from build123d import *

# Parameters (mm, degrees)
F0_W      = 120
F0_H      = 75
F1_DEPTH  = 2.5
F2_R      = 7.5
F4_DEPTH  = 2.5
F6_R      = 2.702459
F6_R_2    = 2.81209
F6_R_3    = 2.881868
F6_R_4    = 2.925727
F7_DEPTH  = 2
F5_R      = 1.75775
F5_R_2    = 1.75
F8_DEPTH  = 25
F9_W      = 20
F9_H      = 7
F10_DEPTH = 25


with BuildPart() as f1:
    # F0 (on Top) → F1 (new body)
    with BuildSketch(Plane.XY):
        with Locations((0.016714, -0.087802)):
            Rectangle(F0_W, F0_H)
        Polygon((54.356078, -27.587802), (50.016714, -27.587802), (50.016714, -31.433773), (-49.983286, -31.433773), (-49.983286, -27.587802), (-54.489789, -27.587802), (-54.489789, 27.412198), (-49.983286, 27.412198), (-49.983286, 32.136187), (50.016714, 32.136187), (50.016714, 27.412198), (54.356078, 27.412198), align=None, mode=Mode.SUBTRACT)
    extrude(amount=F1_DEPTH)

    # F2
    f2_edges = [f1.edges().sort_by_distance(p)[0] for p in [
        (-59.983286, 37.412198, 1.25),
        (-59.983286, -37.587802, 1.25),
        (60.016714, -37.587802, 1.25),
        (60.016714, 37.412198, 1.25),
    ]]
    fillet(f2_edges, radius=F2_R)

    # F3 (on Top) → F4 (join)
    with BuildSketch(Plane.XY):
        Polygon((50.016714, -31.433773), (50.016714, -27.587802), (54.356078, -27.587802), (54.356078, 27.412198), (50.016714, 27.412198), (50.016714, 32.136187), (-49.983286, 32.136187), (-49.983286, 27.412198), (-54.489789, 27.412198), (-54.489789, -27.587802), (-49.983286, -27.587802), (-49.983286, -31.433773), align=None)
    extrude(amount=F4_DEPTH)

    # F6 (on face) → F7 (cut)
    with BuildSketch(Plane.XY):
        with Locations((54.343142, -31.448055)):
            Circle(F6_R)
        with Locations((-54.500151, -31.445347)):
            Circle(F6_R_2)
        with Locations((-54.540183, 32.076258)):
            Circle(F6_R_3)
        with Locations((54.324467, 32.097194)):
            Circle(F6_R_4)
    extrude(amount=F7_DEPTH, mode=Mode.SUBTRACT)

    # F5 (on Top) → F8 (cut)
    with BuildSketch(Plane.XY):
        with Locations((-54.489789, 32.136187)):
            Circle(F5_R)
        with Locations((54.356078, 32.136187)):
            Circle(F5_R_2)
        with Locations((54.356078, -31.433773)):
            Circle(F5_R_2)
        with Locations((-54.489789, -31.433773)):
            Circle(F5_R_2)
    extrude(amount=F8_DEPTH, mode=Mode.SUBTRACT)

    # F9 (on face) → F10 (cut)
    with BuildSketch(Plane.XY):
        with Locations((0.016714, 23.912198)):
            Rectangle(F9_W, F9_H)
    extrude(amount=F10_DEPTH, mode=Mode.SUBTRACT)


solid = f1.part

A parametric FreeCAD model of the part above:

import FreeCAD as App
import Part
import Sketcher
from FreeCAD import Vector
Q = App.Units.Quantity


def edges_at(feature, points):
    """Names of the edges that pass closest to the given points."""
    edges = feature.Shape.Edges
    near = lambda p: min(range(len(edges)), key=lambda i: edges[i].distToShape(Part.Vertex(*p))[0])
    return sorted({f"Edge{near(p) + 1}" for p in points})


def add_polygon(sketch, points):
    """Adds a closed chain of lines whose ends are joined by coincident constraints."""
    first, n = sketch.GeometryCount, len(points)
    for a, b in zip(points, points[1:] + points[:1]):
        sketch.addGeometry(Part.LineSegment(App.Vector(*a, 0), App.Vector(*b, 0)), False)
    for i in range(n):
        sketch.addConstraint(Sketcher.Constraint("Coincident", first + i, 2, first + (i + 1) % n, 1))

doc = App.newDocument("Part")
body = doc.addObject("PartDesign::Body", "Body")

# Sketch on XY plane
sketch1 = doc.addObject("Sketcher::SketchObject", "Sketch")
body.addObject(sketch1)
sketch1.AttachmentSupport = (doc.XY_Plane, [""])
sketch1.MapMode = "FlatFace"
add_polygon(sketch1, [(-60, 37.4), (-60, -37.6), (60, -37.6), (60, 37.4)])  # lines 0-3
add_polygon(sketch1, [(54.4, 27.4), (54.4, -27.6), (50, -27.6), (50, -31.4), (-50, -31.4), (-50, -27.6), (-54.5, -27.6), (-54.5, 27.4), (-50, 27.4), (-50, 32.1), (50, 32.1), (50, 27.4)])  # lines 4-15
sketch1.addConstraint(Sketcher.Constraint("Vertical", 0))
sketch1.addConstraint(Sketcher.Constraint("Horizontal", 1))
sketch1.addConstraint(Sketcher.Constraint("Vertical", 2))
sketch1.addConstraint(Sketcher.Constraint("Horizontal", 3))
sketch1.addConstraint(Sketcher.Constraint("Vertical", 4))
sketch1.addConstraint(Sketcher.Constraint("Horizontal", 5))
sketch1.addConstraint(Sketcher.Constraint("Vertical", 6))
sketch1.addConstraint(Sketcher.Constraint("Horizontal", 7))
sketch1.addConstraint(Sketcher.Constraint("Vertical", 8))
sketch1.addConstraint(Sketcher.Constraint("Horizontal", 9))
sketch1.addConstraint(Sketcher.Constraint("Vertical", 10))
sketch1.addConstraint(Sketcher.Constraint("Horizontal", 11))
sketch1.addConstraint(Sketcher.Constraint("Vertical", 12))
sketch1.addConstraint(Sketcher.Constraint("Horizontal", 13))
sketch1.addConstraint(Sketcher.Constraint("Vertical", 14))
sketch1.addConstraint(Sketcher.Constraint("Horizontal", 15))
sketch1.addConstraint(Sketcher.Constraint("Horizontal", 5, 2, 8, 2))
sketch1.addConstraint(Sketcher.Constraint("Horizontal", 11, 2, 14, 2))
sketch1.addConstraint(Sketcher.Constraint("Vertical", 8, 2, 11, 2))
sketch1.addConstraint(Sketcher.Constraint("Vertical", 6, 2, 13, 2))
sketch1.addConstraint(Sketcher.Constraint("DistanceX", 1, 1, 1, 2, Q("120 mm")))
sketch1.addConstraint(Sketcher.Constraint("DistanceX", 7, 2, 7, 1, Q("100 mm")))
sketch1.addConstraint(Sketcher.Constraint("DistanceY", 0, 2, 0, 1, Q("75 mm")))
sketch1.addConstraint(Sketcher.Constraint("DistanceY", 4, 2, 4, 1, Q("55 mm")))
sketch1.addConstraint(Sketcher.Constraint("DistanceY", 1, 2, 4, 2, Q("10 mm")))
sketch1.addConstraint(Sketcher.Constraint("DistanceX", 5, 2, 1, 2, Q("10 mm")))
sketch1.addConstraint(Sketcher.Constraint("DistanceY", 6, 2, 6, 1, Q("3.845971 mm")))
sketch1.addConstraint(Sketcher.Constraint("DistanceY", 12, 1, 12, 2, Q("4.723989 mm")))
sketch1.addConstraint(Sketcher.Constraint("DistanceY", 4, 2, -1, 1, Q("27.587802 mm")))
sketch1.addConstraint(Sketcher.Constraint("DistanceX", 5, 2, 5, 1, Q("4.339364 mm")))
sketch1.addConstraint(Sketcher.Constraint("DistanceX", 9, 2, 9, 1, Q("4.506503 mm")))
sketch1.addConstraint(Sketcher.Constraint("DistanceX", 9, 2, -1, 1, Q("54.489789 mm")))
pad1 = doc.addObject("PartDesign::Pad", "Pad")
body.addObject(pad1)
pad1.Profile = sketch1
pad1.Length = 2.5
doc.recompute()

fillet = doc.addObject("PartDesign::Fillet", "Fillet")
body.addObject(fillet)
fillet.Base = (pad1, edges_at(pad1, [
    (-59.983, 37.412, 1.25),
    (-59.983, -37.588, 1.25),
    (60.017, -37.588, 1.25),
    (60.017, 37.412, 1.25),
]))
fillet.Radius = 7.5

# Sketch on XY plane
sketch2 = doc.addObject("Sketcher::SketchObject", "Sketch001")
body.addObject(sketch2)
sketch2.AttachmentSupport = (doc.XY_Plane, [""])
sketch2.MapMode = "FlatFace"
add_polygon(sketch2, [(50, -31.4), (50, -27.6), (54.4, -27.6), (54.4, 27.4), (50, 27.4), (50, 32.1), (-50, 32.1), (-50, 27.4), (-54.5, 27.4), (-54.5, -27.6), (-50, -27.6), (-50, -31.4)])  # lines 0-11
sketch2.addConstraint(Sketcher.Constraint("Vertical", 0))
sketch2.addConstraint(Sketcher.Constraint("Horizontal", 1))
sketch2.addConstraint(Sketcher.Constraint("Vertical", 2))
sketch2.addConstraint(Sketcher.Constraint("Horizontal", 3))
sketch2.addConstraint(Sketcher.Constraint("Vertical", 4))
sketch2.addConstraint(Sketcher.Constraint("Horizontal", 5))
sketch2.addConstraint(Sketcher.Constraint("Vertical", 6))
sketch2.addConstraint(Sketcher.Constraint("Horizontal", 7))
sketch2.addConstraint(Sketcher.Constraint("Vertical", 8))
sketch2.addConstraint(Sketcher.Constraint("Horizontal", 9))
sketch2.addConstraint(Sketcher.Constraint("Vertical", 10))
sketch2.addConstraint(Sketcher.Constraint("Horizontal", 11))
sketch2.addConstraint(Sketcher.Constraint("Horizontal", 3, 2, 6, 2))
sketch2.addConstraint(Sketcher.Constraint("Horizontal", 1, 2, 8, 2))
sketch2.addConstraint(Sketcher.Constraint("Vertical", 0, 2, 3, 2))
sketch2.addConstraint(Sketcher.Constraint("Vertical", 6, 2, 9, 2))
sketch2.addConstraint(Sketcher.Constraint("DistanceX", 5, 2, 5, 1, Q("100 mm")))
sketch2.addConstraint(Sketcher.Constraint("DistanceY", 2, 1, 2, 2, Q("55 mm")))
sketch2.addConstraint(Sketcher.Constraint("DistanceY", 0, 1, 0, 2, Q("3.845971 mm")))
sketch2.addConstraint(Sketcher.Constraint("DistanceY", 4, 1, 4, 2, Q("4.723989 mm")))
sketch2.addConstraint(Sketcher.Constraint("DistanceY", 0, 2, -1, 1, Q("27.587802 mm")))
sketch2.addConstraint(Sketcher.Constraint("DistanceX", 1, 1, 1, 2, Q("4.339364 mm")))
sketch2.addConstraint(Sketcher.Constraint("DistanceX", 7, 2, 7, 1, Q("4.506503 mm")))
sketch2.addConstraint(Sketcher.Constraint("DistanceX", 7, 2, -1, 1, Q("54.489789 mm")))
pad2 = doc.addObject("PartDesign::Pad", "Pad001")
body.addObject(pad2)
pad2.Profile = sketch2
pad2.Length = 2.5

# Sketch on XY plane
sketch3 = doc.addObject("Sketcher::SketchObject", "Sketch002")
body.addObject(sketch3)
sketch3.AttachmentSupport = (doc.XY_Plane, [""])
sketch3.MapMode = "FlatFace"
sketch3.addGeometry(Part.Circle(Vector(54.3, -31.4, 0), Vector(0, 0, 1), 2.7), False)
sketch3.addGeometry(Part.Circle(Vector(-54.5, -31.4, 0), Vector(0, 0, 1), 2.8), False)
sketch3.addGeometry(Part.Circle(Vector(-54.5, 32.1, 0), Vector(0, 0, 1), 2.9), False)
sketch3.addGeometry(Part.Circle(Vector(54.3, 32.1, 0), Vector(0, 0, 1), 2.9), False)
sketch3.addConstraint(Sketcher.Constraint("Diameter", 0, Q("5.404918 mm")))
sketch3.addConstraint(Sketcher.Constraint("Diameter", 1, Q("5.62418 mm")))
sketch3.addConstraint(Sketcher.Constraint("Diameter", 2, Q("5.763736 mm")))
sketch3.addConstraint(Sketcher.Constraint("Diameter", 3, Q("5.851454 mm")))
sketch3.addConstraint(Sketcher.Constraint("DistanceX", 1, 3, -1, 1, Q("54.500151 mm")))
sketch3.addConstraint(Sketcher.Constraint("DistanceY", -1, 1, 2, 3, Q("32.076258 mm")))
sketch3.addConstraint(Sketcher.Constraint("DistanceX", 2, 3, 1, 3, Q("0.040032 mm")))
sketch3.addConstraint(Sketcher.Constraint("DistanceY", 0, 3, 3, 3, Q("63.545249 mm")))
sketch3.addConstraint(Sketcher.Constraint("DistanceX", 2, 3, 3, 3, Q("108.86465 mm")))
sketch3.addConstraint(Sketcher.Constraint("DistanceY", 1, 3, 3, 3, Q("63.542541 mm")))
sketch3.addConstraint(Sketcher.Constraint("DistanceX", -1, 1, 0, 3, Q("54.343142 mm")))
sketch3.addConstraint(Sketcher.Constraint("DistanceY", 0, 3, -1, 1, Q("31.448055 mm")))
pocket1 = doc.addObject("PartDesign::Pocket", "Pocket")
body.addObject(pocket1)
pocket1.Profile = sketch3
pocket1.Length = 2
pocket1.Reversed = True

# Sketch on XY plane
sketch4 = doc.addObject("Sketcher::SketchObject", "Sketch003")
body.addObject(sketch4)
sketch4.AttachmentSupport = (doc.XY_Plane, [""])
sketch4.MapMode = "FlatFace"
sketch4.addGeometry(Part.Circle(Vector(-54.5, 32.1, 0), Vector(0, 0, 1), 1.8), False)
sketch4.addGeometry(Part.Circle(Vector(54.4, 32.1, 0), Vector(0, 0, 1), 1.8), False)
sketch4.addGeometry(Part.Circle(Vector(54.4, -31.4, 0), Vector(0, 0, 1), 1.8), False)
sketch4.addGeometry(Part.Circle(Vector(-54.5, -31.4, 0), Vector(0, 0, 1), 1.8), False)
sketch4.addConstraint(Sketcher.Constraint("Equal", 1, 2))
sketch4.addConstraint(Sketcher.Constraint("Equal", 2, 3))
sketch4.addConstraint(Sketcher.Constraint("Horizontal", 0, 3, 1, 3))
sketch4.addConstraint(Sketcher.Constraint("Horizontal", 2, 3, 3, 3))
sketch4.addConstraint(Sketcher.Constraint("Vertical", 1, 3, 2, 3))
sketch4.addConstraint(Sketcher.Constraint("Vertical", 0, 3, 3, 3))
sketch4.addConstraint(Sketcher.Constraint("Diameter", 1, Q("3.5 mm")))
sketch4.addConstraint(Sketcher.Constraint("Diameter", 0, Q("3.5155 mm")))
sketch4.addConstraint(Sketcher.Constraint("DistanceX", 0, 3, -1, 1, Q("54.489789 mm")))
sketch4.addConstraint(Sketcher.Constraint("DistanceY", 2, 3, 1, 3, Q("63.56996 mm")))
sketch4.addConstraint(Sketcher.Constraint("DistanceY", -1, 1, 0, 3, Q("32.136187 mm")))
sketch4.addConstraint(Sketcher.Constraint("DistanceX", -1, 1, 1, 3, Q("54.356078 mm")))
pocket2 = doc.addObject("PartDesign::Pocket", "Pocket001")
body.addObject(pocket2)
pocket2.Profile = sketch4
pocket2.Length = 25
pocket2.Reversed = True

# Sketch on XY plane
sketch5 = doc.addObject("Sketcher::SketchObject", "Sketch004")
body.addObject(sketch5)
sketch5.AttachmentSupport = (doc.XY_Plane, [""])
sketch5.MapMode = "FlatFace"
add_polygon(sketch5, [(-10, 27), (-10, 20), (10, 20), (10, 27)])  # lines 0-3
sketch5.addConstraint(Sketcher.Constraint("Vertical", 0))
sketch5.addConstraint(Sketcher.Constraint("Horizontal", 1))
sketch5.addConstraint(Sketcher.Constraint("Vertical", 2))
sketch5.addConstraint(Sketcher.Constraint("Horizontal", 3))
sketch5.addConstraint(Sketcher.Constraint("DistanceX", 1, 1, 1, 2, Q("20 mm")))
sketch5.addConstraint(Sketcher.Constraint("DistanceY", 0, 2, 0, 1, Q("7 mm")))
sketch5.addConstraint(Sketcher.Constraint("DistanceY", -1, 1, 0, 2, Q("20.412198 mm")))
sketch5.addConstraint(Sketcher.Constraint("DistanceX", 0, 2, -1, 1, Q("9.983286 mm")))
pocket3 = doc.addObject("PartDesign::Pocket", "Pocket002")
body.addObject(pocket3)
pocket3.Profile = sketch5
pocket3.Length = 25
pocket3.Reversed = True

doc.recompute()
